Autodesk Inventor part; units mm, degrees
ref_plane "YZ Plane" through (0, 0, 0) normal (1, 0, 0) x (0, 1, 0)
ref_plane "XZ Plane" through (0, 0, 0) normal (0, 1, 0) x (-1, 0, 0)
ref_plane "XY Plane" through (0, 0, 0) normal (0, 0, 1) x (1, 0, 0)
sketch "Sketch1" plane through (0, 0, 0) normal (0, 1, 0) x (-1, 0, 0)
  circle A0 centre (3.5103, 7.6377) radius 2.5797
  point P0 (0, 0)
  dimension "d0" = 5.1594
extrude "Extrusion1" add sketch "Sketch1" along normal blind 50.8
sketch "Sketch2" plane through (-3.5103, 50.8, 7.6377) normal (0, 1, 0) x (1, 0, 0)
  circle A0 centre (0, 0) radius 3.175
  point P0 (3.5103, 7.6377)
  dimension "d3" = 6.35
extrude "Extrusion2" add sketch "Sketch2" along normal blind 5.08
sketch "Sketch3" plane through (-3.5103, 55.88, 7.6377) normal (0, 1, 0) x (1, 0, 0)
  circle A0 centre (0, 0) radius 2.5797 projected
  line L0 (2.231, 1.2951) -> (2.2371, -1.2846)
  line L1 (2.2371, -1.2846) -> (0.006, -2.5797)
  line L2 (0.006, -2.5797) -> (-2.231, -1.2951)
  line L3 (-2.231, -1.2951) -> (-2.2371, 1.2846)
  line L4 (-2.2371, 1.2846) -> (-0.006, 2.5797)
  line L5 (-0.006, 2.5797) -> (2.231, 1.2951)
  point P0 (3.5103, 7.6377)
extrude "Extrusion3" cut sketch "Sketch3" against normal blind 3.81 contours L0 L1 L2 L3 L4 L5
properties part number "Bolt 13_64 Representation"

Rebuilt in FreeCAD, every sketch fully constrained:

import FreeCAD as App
import Part
import Sketcher

V = App.Vector
Q = App.Units.Quantity


def add_polygon(sketch, points):
    """Adds a closed chain of lines whose ends are joined by coincident constraints."""
    first, n = sketch.GeometryCount, len(points)
    for a, b in zip(points, points[1:] + points[:1]):
        sketch.addGeometry(Part.LineSegment(App.Vector(*a, 0), App.Vector(*b, 0)), False)
    for i in range(n):
        sketch.addConstraint(Sketcher.Constraint("Coincident", first + i, 2, first + (i + 1) % n, 1))

doc = App.newDocument("Part")
body = doc.addObject("PartDesign::Body", "Body")

# Sketch on XZ plane
sketch1 = body.newObject("Sketcher::SketchObject", "Sketch")
sketch1.AttachmentSupport = (doc.getObject("XZ_Plane"), [""])
sketch1.MapMode = "FlatFace"
sketch1.addGeometry(Part.Circle(V(-3.5103, 7.6377, 0), V(0, 0, 1), 2.5797), False)
sketch1.addConstraint(Sketcher.Constraint("Diameter", 0, Q("0.203126 in")))
sketch1.addConstraint(Sketcher.Constraint("DistanceX", 0, 3, -1, 1, Q("0.1382 in")))
sketch1.addConstraint(Sketcher.Constraint("DistanceY", -1, 1, 0, 3, Q("0.3007 in")))
pad1 = body.newObject("PartDesign::Pad", "Pad")
pad1.Profile = sketch1
pad1.Length = Q("2 in")
pad1.Reversed = True

# Sketch on XZ plane
sketch2 = body.newObject("Sketcher::SketchObject", "Sketch001")
sketch2.AttachmentSupport = (doc.getObject("XZ_Plane"), [""])
sketch2.MapMode = "FlatFace"
sketch2.AttachmentOffset = App.Placement(V(0, 0, -2 * 25.4), App.Rotation())
sketch2.addGeometry(Part.Circle(V(-3.5103, 7.6377, 0), V(0, 0, 1), 3.175), False)
sketch2.addConstraint(Sketcher.Constraint("Diameter", 0, Q("0.25 in")))
sketch2.addConstraint(Sketcher.Constraint("DistanceX", 0, 3, -1, 1, Q("0.1382 in")))
sketch2.addConstraint(Sketcher.Constraint("DistanceY", -1, 1, 0, 3, Q("0.3007 in")))
pad2 = body.newObject("PartDesign::Pad", "Pad001")
pad2.Profile = sketch2
pad2.Length = Q("0.2 in")
pad2.Reversed = True

# Sketch on XZ plane
sketch3 = body.newObject("Sketcher::SketchObject", "Sketch002")
sketch3.AttachmentSupport = (doc.getObject("XZ_Plane"), [""])
sketch3.MapMode = "FlatFace"
sketch3.AttachmentOffset = App.Placement(V(0, 0, -2.2 * 25.4), App.Rotation())
add_polygon(sketch3, [(-1.2732, 8.9223), (-1.2793, 6.3426), (-3.5163, 5.058), (-5.7474, 6.3531), (-5.7413, 8.9328), (-3.5043, 10.2174)])  # lines 0-5
sketch3.addConstraint(Sketcher.Constraint("Parallel", 0, 3))
sketch3.addConstraint(Sketcher.Constraint("Parallel", 1, 4))
sketch3.addConstraint(Sketcher.Constraint("Parallel", 2, 5))
sketch3.addConstraint(Sketcher.Constraint("Equal", 0, 1))
sketch3.addConstraint(Sketcher.Constraint("Equal", 1, 2))
sketch3.addConstraint(Sketcher.Constraint("Equal", 2, 3))
sketch3.addConstraint(Sketcher.Constraint("DistanceY", 1, 2, 2, 2, Q("0.051 in")))
sketch3.addConstraint(Sketcher.Constraint("DistanceY", 1, 2, 4, 2, Q("0.203126 in")))
sketch3.addConstraint(Sketcher.Constraint("DistanceY", -1, 1, 0, 2, Q("0.2497 in")))
sketch3.addConstraint(Sketcher.Constraint("DistanceX", 2, 2, 0, 2, Q("0.1759 in")))
sketch3.addConstraint(Sketcher.Constraint("DistanceX", 3, 2, 1, 2, Q("0.0876 in")))
sketch3.addConstraint(Sketcher.Constraint("DistanceX", 0, 2, -1, 1, Q("1.2793 mm")))
pocket1 = body.newObject("PartDesign::Pocket", "Pocket")
pocket1.Profile = sketch3
pocket1.Length = Q("0.15 in")
pocket1.Reversed = True

doc.recompute()
